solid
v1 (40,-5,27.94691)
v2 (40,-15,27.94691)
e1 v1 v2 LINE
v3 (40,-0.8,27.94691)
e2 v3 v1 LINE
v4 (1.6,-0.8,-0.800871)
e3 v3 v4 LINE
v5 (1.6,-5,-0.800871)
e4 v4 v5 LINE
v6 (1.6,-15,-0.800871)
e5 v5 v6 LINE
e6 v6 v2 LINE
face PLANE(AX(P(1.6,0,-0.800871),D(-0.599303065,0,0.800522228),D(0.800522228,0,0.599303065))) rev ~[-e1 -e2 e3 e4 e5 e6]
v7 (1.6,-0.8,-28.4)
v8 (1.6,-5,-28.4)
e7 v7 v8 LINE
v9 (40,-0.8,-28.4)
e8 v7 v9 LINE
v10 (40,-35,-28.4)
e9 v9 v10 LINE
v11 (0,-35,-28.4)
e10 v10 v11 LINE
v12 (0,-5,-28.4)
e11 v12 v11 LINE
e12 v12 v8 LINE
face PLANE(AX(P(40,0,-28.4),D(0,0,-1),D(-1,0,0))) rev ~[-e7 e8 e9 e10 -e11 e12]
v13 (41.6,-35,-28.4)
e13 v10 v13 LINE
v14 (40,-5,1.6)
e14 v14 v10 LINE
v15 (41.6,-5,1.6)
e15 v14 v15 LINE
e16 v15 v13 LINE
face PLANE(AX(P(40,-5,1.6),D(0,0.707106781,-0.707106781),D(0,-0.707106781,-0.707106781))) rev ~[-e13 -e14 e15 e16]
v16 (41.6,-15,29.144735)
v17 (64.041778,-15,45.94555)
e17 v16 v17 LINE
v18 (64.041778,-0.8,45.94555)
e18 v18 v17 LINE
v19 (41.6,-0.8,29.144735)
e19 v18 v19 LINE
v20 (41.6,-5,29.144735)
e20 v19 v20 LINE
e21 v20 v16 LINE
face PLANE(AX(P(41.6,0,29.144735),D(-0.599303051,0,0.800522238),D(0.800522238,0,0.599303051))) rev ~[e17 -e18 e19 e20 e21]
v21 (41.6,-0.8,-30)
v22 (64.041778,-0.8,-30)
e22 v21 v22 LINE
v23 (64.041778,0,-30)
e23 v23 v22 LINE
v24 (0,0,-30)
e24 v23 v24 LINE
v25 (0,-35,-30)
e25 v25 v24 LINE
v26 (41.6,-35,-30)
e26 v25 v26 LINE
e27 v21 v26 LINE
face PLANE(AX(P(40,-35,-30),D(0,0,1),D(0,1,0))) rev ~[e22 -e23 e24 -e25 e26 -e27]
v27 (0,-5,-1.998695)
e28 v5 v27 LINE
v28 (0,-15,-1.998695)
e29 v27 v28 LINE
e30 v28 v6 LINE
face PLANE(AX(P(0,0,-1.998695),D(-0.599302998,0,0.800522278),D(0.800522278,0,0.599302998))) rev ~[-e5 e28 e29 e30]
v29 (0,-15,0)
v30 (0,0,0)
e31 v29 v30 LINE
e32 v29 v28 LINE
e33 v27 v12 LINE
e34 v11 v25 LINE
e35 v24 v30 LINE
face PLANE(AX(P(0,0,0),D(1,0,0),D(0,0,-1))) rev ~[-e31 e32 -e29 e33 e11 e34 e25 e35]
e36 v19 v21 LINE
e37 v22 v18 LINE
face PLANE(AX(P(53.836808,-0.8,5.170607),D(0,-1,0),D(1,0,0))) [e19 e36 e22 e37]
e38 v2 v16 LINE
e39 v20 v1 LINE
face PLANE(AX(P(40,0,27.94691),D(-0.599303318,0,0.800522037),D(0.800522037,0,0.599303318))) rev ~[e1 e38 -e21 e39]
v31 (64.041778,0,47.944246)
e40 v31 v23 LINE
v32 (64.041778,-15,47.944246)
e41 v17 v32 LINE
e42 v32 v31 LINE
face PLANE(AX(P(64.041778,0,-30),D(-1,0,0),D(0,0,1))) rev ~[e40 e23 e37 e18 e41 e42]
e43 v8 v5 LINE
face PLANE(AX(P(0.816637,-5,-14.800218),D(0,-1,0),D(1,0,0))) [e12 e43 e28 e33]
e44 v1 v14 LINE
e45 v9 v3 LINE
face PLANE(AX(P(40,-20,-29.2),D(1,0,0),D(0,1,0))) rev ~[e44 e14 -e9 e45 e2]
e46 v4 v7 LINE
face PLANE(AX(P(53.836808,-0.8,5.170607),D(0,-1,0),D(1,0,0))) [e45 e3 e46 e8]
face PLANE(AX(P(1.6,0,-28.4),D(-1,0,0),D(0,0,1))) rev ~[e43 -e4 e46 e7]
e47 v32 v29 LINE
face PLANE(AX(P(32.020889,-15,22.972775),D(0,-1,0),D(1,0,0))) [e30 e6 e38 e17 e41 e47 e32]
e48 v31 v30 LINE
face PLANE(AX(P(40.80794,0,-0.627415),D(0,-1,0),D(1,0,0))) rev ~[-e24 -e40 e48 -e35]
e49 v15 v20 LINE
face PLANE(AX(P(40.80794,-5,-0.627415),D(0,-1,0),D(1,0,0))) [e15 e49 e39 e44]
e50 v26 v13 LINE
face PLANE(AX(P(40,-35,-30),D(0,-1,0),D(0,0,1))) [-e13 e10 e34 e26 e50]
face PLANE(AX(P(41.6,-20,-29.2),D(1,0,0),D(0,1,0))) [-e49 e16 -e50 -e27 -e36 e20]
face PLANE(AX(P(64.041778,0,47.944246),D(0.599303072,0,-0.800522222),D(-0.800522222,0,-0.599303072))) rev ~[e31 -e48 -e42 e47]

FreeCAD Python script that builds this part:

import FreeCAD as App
import Part
import Sketcher
from FreeCAD import Vector
Q = App.Units.Quantity

doc = App.newDocument("Part")
body = doc.addObject("PartDesign::Body", "Body")

# Sketch on XZ plane
sketch1 = body.newObject("Sketcher::SketchObject", "Sketch")
sketch1.AttachmentSupport = (doc.getObject("XZ_Plane"), [""])
sketch1.MapMode = "FlatFace"
sketch1.addGeometry(Part.LineSegment(Vector(64.041778, -30, 0), Vector(64.041778, 47.944246, 0)), False)
sketch1.addGeometry(Part.LineSegment(Vector(64.041778, 47.944246, 0), Vector(0, 0, 0)), False)
sketch1.addGeometry(Part.LineSegment(Vector(0, 0, 0), Vector(0, -30, 0)), False)
sketch1.addGeometry(Part.LineSegment(Vector(0, -30, 0), Vector(64.041778, -30, 0)), False)
sketch1.addConstraint(Sketcher.Constraint("Coincident", 0, 2, 1, 1))
sketch1.addConstraint(Sketcher.Constraint("Coincident", 1, 2, 2, 1))
sketch1.addConstraint(Sketcher.Constraint("Coincident", 2, 2, 3, 1))
sketch1.addConstraint(Sketcher.Constraint("Coincident", 3, 2, 0, 1))
sketch1.addConstraint(Sketcher.Constraint("Vertical", 0))
sketch1.addConstraint(Sketcher.Constraint("Vertical", 2))
sketch1.addConstraint(Sketcher.Constraint("Horizontal", 3))
sketch1.addConstraint(Sketcher.Constraint("Coincident", 1, 2, -1, 1))
sketch1.addConstraint(Sketcher.Constraint("DistanceY", 2, 2, 2, 1, 30.0))
sketch1.addConstraint(Sketcher.Constraint("Distance", 1, 80.0))
sketch1.addConstraint(Sketcher.Constraint("Angle", 1, Q("-143.18 deg")))
pad1 = body.newObject("PartDesign::Pad", "Pad")
pad1.Profile = sketch1
pad1.Length = 0.8

# Sketch on XZ plane
sketch2 = body.newObject("Sketcher::SketchObject", "Sketch001")
sketch2.AttachmentSupport = (doc.getObject("XZ_Plane"), [""])
sketch2.MapMode = "FlatFace"
sketch2.addGeometry(Part.LineSegment(Vector(0, -28.4, 0), Vector(0, -30, 0)), False)
sketch2.addGeometry(Part.LineSegment(Vector(0, -30, 0), Vector(40, -30, 0)), False)
sketch2.addGeometry(Part.LineSegment(Vector(40, -30, 0), Vector(40, -28.4, 0)), False)
sketch2.addGeometry(Part.LineSegment(Vector(40, -28.4, 0), Vector(0, -28.4, 0)), False)
sketch2.addConstraint(Sketcher.Constraint("Coincident", 0, 2, 1, 1))
sketch2.addConstraint(Sketcher.Constraint("Coincident", 1, 2, 2, 1))
sketch2.addConstraint(Sketcher.Constraint("Coincident", 2, 2, 3, 1))
sketch2.addConstraint(Sketcher.Constraint("Coincident", 3, 2, 0, 1))
sketch2.addConstraint(Sketcher.Constraint("Vertical", 0))
sketch2.addConstraint(Sketcher.Constraint("Horizontal", 1))
sketch2.addConstraint(Sketcher.Constraint("Vertical", 2))
sketch2.addConstraint(Sketcher.Constraint("Horizontal", 3))
sketch2.addConstraint(Sketcher.Constraint("PointOnObject", 0, 2, -2))
sketch2.addConstraint(Sketcher.Constraint("DistanceX", 1, 1, 1, 2, 40.0))
sketch2.addConstraint(Sketcher.Constraint("DistanceY", 0, 2, 0, 1, 1.6))
sketch2.addConstraint(Sketcher.Constraint("DistanceY", 0, 2, -1, 1, 30.0))
pad2 = body.newObject("PartDesign::Pad", "Pad001")
pad2.Profile = sketch2
pad2.Length = 35

# Sketch on XZ plane
sketch3 = body.newObject("Sketcher::SketchObject", "Sketch002")
sketch3.AttachmentSupport = (doc.getObject("XZ_Plane"), [""])
sketch3.MapMode = "FlatFace"
sketch3.addGeometry(Part.LineSegment(Vector(64.041778, 47.944246, 0), Vector(0, 0, 0)), False)
sketch3.addGeometry(Part.LineSegment(Vector(0, 0, 0), Vector(0, -1.998695, 0)), False)
sketch3.addGeometry(Part.LineSegment(Vector(0, -1.998695, 0), Vector(1.6, -0.800871, 0)), False)
sketch3.addGeometry(Part.LineSegment(Vector(1.6, -0.800871, 0), Vector(40, 27.94691, 0)), False)
sketch3.addGeometry(Part.LineSegment(Vector(40, 27.94691, 0), Vector(41.6, 29.144735, 0)), False)
sketch3.addGeometry(Part.LineSegment(Vector(41.6, 29.144735, 0), Vector(64.041778, 45.94555, 0)), False)
sketch3.addGeometry(Part.LineSegment(Vector(64.041778, 45.94555, 0), Vector(64.041778, 47.944246, 0)), False)
sketch3.addConstraint(Sketcher.Constraint("Coincident", 0, 2, 1, 1))
sketch3.addConstraint(Sketcher.Constraint("Coincident", 1, 2, 2, 1))
sketch3.addConstraint(Sketcher.Constraint("Coincident", 2, 2, 3, 1))
sketch3.addConstraint(Sketcher.Constraint("Coincident", 3, 2, 4, 1))
sketch3.addConstraint(Sketcher.Constraint("Coincident", 4, 2, 5, 1))
sketch3.addConstraint(Sketcher.Constraint("Coincident", 5, 2, 6, 1))
sketch3.addConstraint(Sketcher.Constraint("Coincident", 6, 2, 0, 1))
sketch3.addConstraint(Sketcher.Constraint("Vertical", 1))
sketch3.addConstraint(Sketcher.Constraint("Vertical", 6))
sketch3.addConstraint(Sketcher.Constraint("Coincident", 0, 2, -1, 1))
sketch3.addConstraint(Sketcher.Constraint("Parallel", 0, 2))
sketch3.addConstraint(Sketcher.Constraint("Parallel", 2, 3))
sketch3.addConstraint(Sketcher.Constraint("Parallel", 3, 4))
sketch3.addConstraint(Sketcher.Constraint("Parallel", 4, 5))
sketch3.addConstraint(Sketcher.Constraint("Equal", 2, 4))
sketch3.addConstraint(Sketcher.Constraint("Distance", 0, 80.0))
sketch3.addConstraint(Sketcher.Constraint("DistanceX", -1, 1, 3, 2, 40.0))
sketch3.addConstraint(Sketcher.Constraint("DistanceX", -1, 1, 2, 2, 1.6))
sketch3.addConstraint(Sketcher.Constraint("Angle", 0, Q("-143.18 deg")))
sketch3.addConstraint(Sketcher.Constraint("DistanceY", 1, 2, 1, 1, 1.998695))
pad3 = body.newObject("PartDesign::Pad", "Pad002")
pad3.Profile = sketch3
pad3.Length = 15

# Sketch on XZ plane
sketch4 = body.newObject("Sketcher::SketchObject", "Sketch003")
sketch4.AttachmentSupport = (doc.getObject("XZ_Plane"), [""])
sketch4.MapMode = "FlatFace"
sketch4.addGeometry(Part.LineSegment(Vector(41.6, -30, 0), Vector(41.6, 29.144735, 0)), False)
sketch4.addGeometry(Part.LineSegment(Vector(41.6, 29.144735, 0), Vector(40, 27.94691, 0)), False)
sketch4.addGeometry(Part.LineSegment(Vector(40, 27.94691, 0), Vector(40, -30, 0)), False)
sketch4.addGeometry(Part.LineSegment(Vector(40, -30, 0), Vector(41.6, -30, 0)), False)
sketch4.addGeometry(Part.LineSegment(Vector(1.6, -0.800871, 0), Vector(0, -1.998695, 0)), False)
sketch4.addGeometry(Part.LineSegment(Vector(0, -1.998695, 0), Vector(0, -28.4, 0)), False)
sketch4.addGeometry(Part.LineSegment(Vector(0, -28.4, 0), Vector(1.6, -28.4, 0)), False)
sketch4.addGeometry(Part.LineSegment(Vector(1.6, -28.4, 0), Vector(1.6, -0.800871, 0)), False)
sketch4.addConstraint(Sketcher.Constraint("Coincident", 0, 2, 1, 1))
sketch4.addConstraint(Sketcher.Constraint("Coincident", 1, 2, 2, 1))
sketch4.addConstraint(Sketcher.Constraint("Coincident", 2, 2, 3, 1))
sketch4.addConstraint(Sketcher.Constraint("Coincident", 3, 2, 0, 1))
sketch4.addConstraint(Sketcher.Constraint("Coincident", 4, 2, 5, 1))
sketch4.addConstraint(Sketcher.Constraint("Coincident", 5, 2, 6, 1))
sketch4.addConstraint(Sketcher.Constraint("Coincident", 6, 2, 7, 1))
sketch4.addConstraint(Sketcher.Constraint("Coincident", 7, 2, 4, 1))
sketch4.addConstraint(Sketcher.Constraint("Vertical", 0))
sketch4.addConstraint(Sketcher.Constraint("Vertical", 2))
sketch4.addConstraint(Sketcher.Constraint("Horizontal", 3))
sketch4.addConstraint(Sketcher.Constraint("Vertical", 5))
sketch4.addConstraint(Sketcher.Constraint("Horizontal", 6))
sketch4.addConstraint(Sketcher.Constraint("Vertical", 7))
sketch4.addConstraint(Sketcher.Constraint("PointOnObject", 4, 2, -2))
sketch4.addConstraint(Sketcher.Constraint("Parallel", 1, 4))
sketch4.addConstraint(Sketcher.Constraint("Equal", 3, 6))
sketch4.addConstraint(Sketcher.Constraint("DistanceX", 3, 1, 3, 2, 1.6))
sketch4.addConstraint(Sketcher.Constraint("DistanceX", -1, 1, 1, 2, 40.0))
sketch4.addConstraint(Sketcher.Constraint("DistanceY", 2, 2, -1, 1, 30.0))
sketch4.addConstraint(Sketcher.Constraint("DistanceY", 5, 2, -1, 1, 28.4))
sketch4.addConstraint(Sketcher.Constraint("Angle", 1, Q("-143.179982 deg")))
sketch4.addConstraint(Sketcher.Constraint("DistanceY", 2, 2, 2, 1, 57.94691))
sketch4.addConstraint(Sketcher.Constraint("DistanceY", 7, 1, 7, 2, 27.599129))
pad4 = body.newObject("PartDesign::Pad", "Pad003")
pad4.Profile = sketch4
pad4.Length = 5

# Sketch on YZ plane
sketch5 = body.newObject("Sketcher::SketchObject", "Sketch004")
sketch5.AttachmentSupport = (doc.getObject("YZ_Plane"), [""])
sketch5.MapMode = "FlatFace"
sketch5.AttachmentOffset = App.Placement(Vector(0, 0, 40), App.Rotation())
sketch5.addGeometry(Part.LineSegment(Vector(-35, -28.4, 0), Vector(-35, -30, 0)), False)
sketch5.addGeometry(Part.LineSegment(Vector(-35, -30, 0), Vector(-5, -30, 0)), False)
sketch5.addGeometry(Part.LineSegment(Vector(-5, -30, 0), Vector(-5, 1.6, 0)), False)
sketch5.addGeometry(Part.LineSegment(Vector(-5, 1.6, 0), Vector(-35, -28.4, 0)), False)
sketch5.addConstraint(Sketcher.Constraint("Coincident", 0, 2, 1, 1))
sketch5.addConstraint(Sketcher.Constraint("Coincident", 1, 2, 2, 1))
sketch5.addConstraint(Sketcher.Constraint("Coincident", 2, 2, 3, 1))
sketch5.addConstraint(Sketcher.Constraint("Coincident", 3, 2, 0, 1))
sketch5.addConstraint(Sketcher.Constraint("Vertical", 0))
sketch5.addConstraint(Sketcher.Constraint("Horizontal", 1))
sketch5.addConstraint(Sketcher.Constraint("Vertical", 2))
sketch5.addConstraint(Sketcher.Constraint("DistanceX", 1, 1, 1, 2, 30.0))
sketch5.addConstraint(Sketcher.Constraint("Angle", 3, Q("-135 deg")))
sketch5.addConstraint(Sketcher.Constraint("DistanceY", 0, 2, 0, 1, 1.6))
sketch5.addConstraint(Sketcher.Constraint("DistanceX", 0, 2, -1, 1, 35.0))
sketch5.addConstraint(Sketcher.Constraint("DistanceY", 0, 2, -1, 1, 30.0))
pad5 = body.newObject("PartDesign::Pad", "Pad004")
pad5.Profile = sketch5
pad5.Length = 1.6

doc.recompute()
